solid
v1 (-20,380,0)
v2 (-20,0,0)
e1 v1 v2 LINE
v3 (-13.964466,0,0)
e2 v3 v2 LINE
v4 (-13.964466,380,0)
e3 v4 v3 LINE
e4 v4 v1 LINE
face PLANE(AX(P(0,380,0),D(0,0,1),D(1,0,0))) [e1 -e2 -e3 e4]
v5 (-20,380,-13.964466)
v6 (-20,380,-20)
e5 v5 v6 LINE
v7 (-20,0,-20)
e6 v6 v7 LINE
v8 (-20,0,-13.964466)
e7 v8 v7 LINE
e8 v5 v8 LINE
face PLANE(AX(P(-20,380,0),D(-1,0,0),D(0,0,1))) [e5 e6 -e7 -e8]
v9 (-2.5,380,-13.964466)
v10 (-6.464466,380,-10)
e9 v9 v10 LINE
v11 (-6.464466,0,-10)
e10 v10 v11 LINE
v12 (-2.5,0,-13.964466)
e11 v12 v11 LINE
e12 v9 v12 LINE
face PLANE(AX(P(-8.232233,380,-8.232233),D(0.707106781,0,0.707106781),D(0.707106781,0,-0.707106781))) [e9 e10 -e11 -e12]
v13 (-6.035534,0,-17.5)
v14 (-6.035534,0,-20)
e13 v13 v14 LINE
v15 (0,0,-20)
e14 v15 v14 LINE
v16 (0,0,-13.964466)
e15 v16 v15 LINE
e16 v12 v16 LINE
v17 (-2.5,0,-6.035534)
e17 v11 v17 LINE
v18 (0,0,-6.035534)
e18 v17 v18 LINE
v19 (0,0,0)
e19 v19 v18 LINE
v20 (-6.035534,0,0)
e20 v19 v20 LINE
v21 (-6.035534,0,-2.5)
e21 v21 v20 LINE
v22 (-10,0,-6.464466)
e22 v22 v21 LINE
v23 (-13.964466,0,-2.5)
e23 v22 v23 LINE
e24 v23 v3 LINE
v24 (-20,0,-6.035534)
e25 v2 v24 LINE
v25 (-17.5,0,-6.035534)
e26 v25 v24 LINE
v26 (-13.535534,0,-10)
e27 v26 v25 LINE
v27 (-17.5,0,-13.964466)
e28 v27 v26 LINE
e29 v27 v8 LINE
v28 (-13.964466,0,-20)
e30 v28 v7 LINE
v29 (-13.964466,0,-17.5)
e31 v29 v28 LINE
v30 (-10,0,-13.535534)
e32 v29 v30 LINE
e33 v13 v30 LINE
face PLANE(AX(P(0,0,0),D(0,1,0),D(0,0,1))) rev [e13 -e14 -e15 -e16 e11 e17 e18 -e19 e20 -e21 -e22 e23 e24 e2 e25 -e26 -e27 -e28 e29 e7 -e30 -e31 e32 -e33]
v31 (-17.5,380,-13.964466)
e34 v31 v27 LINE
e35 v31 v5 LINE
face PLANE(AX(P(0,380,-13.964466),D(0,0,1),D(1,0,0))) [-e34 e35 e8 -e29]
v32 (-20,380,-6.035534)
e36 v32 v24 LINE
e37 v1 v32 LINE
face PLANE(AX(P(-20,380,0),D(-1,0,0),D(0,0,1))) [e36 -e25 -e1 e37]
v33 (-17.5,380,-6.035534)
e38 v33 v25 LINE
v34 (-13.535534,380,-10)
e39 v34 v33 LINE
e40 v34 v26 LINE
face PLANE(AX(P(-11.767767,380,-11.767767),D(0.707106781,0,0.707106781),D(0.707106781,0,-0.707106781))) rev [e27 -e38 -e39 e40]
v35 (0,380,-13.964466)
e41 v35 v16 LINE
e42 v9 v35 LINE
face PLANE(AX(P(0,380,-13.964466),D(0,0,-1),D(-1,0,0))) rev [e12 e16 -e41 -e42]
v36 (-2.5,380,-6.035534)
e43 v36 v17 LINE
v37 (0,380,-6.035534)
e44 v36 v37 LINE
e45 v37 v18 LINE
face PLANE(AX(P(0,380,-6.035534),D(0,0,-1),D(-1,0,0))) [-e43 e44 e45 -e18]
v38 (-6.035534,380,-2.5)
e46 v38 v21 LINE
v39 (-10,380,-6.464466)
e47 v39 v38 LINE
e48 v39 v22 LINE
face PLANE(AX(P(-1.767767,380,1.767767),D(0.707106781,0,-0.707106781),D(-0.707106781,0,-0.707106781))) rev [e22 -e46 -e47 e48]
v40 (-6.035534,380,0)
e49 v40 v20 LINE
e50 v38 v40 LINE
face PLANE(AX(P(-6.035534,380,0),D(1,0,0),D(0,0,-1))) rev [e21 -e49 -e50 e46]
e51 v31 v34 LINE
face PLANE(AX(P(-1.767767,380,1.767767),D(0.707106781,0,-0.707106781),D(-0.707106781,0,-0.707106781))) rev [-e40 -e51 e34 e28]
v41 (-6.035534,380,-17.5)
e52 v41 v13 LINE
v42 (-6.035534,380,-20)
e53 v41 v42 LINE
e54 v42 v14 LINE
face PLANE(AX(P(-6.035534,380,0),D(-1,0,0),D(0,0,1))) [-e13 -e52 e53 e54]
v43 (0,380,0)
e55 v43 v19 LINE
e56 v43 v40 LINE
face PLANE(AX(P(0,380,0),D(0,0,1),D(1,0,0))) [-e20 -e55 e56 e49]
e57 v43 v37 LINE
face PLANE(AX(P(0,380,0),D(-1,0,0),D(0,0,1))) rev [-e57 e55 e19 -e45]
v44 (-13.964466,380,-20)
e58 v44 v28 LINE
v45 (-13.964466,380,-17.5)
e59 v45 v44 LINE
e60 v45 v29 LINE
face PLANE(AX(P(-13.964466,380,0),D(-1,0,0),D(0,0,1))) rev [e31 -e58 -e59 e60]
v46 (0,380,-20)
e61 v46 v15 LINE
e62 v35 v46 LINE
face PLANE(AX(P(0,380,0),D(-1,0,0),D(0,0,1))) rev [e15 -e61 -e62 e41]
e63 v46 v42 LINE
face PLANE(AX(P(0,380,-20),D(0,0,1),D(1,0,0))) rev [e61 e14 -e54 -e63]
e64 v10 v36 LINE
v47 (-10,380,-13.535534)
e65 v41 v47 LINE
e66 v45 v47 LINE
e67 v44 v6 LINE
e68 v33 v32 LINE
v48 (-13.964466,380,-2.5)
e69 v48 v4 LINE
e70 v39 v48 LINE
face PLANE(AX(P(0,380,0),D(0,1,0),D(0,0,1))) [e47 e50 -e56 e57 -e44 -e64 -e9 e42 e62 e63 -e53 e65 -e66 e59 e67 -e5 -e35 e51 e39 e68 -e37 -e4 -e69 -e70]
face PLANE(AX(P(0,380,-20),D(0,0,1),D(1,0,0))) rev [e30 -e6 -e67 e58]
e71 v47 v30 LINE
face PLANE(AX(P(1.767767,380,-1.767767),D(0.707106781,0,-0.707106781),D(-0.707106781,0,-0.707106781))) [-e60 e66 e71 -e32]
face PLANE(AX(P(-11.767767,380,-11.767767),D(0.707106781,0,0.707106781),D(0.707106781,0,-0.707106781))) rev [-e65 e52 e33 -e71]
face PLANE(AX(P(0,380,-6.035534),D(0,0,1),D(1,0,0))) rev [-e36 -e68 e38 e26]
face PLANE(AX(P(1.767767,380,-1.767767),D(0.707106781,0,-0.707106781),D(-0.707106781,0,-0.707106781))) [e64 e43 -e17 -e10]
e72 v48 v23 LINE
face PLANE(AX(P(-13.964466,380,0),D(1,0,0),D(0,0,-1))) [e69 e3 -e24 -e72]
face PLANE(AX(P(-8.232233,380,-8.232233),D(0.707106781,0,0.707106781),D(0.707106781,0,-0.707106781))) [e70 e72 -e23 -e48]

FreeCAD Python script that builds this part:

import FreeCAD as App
import Part
import Sketcher

V = App.Vector
Q = App.Units.Quantity

doc = App.newDocument("Part")
body = doc.addObject("PartDesign::Body", "Body")

sketch1 = doc.addObject("Sketcher::SketchObject", "Sketch")
body.addObject(sketch1)
sketch1.AttachmentSupport = (doc.XZ_Plane, [""])
sketch1.MapMode = "FlatFace"
sketch1.addGeometry([
    Part.LineSegment(V(-6, -2.5, 0), V(-6, 0, 0)),
    Part.LineSegment(V(-6, 0, 0), V(0, 0, 0)),
    Part.LineSegment(V(0, 0, 0), V(0, -6, 0)),
    Part.LineSegment(V(0, -6, 0), V(-2.5, -6, 0)),
    Part.LineSegment(V(-2.5, -6, 0), V(-6.5, -10, 0)),
    Part.LineSegment(V(-6.5, -10, 0), V(-2.5, -14, 0)),
    Part.LineSegment(V(-2.5, -14, 0), V(0, -14, 0)),
    Part.LineSegment(V(0, -14, 0), V(0, -20, 0)),
    Part.LineSegment(V(0, -20, 0), V(-6, -20, 0)),
    Part.LineSegment(V(-6, -20, 0), V(-6, -17.5, 0)),
    Part.LineSegment(V(-6, -17.5, 0), V(-10, -13.5, 0)),
    Part.LineSegment(V(-10, -13.5, 0), V(-14, -17.5, 0)),
    Part.LineSegment(V(-14, -17.5, 0), V(-14, -20, 0)),
    Part.LineSegment(V(-14, -20, 0), V(-20, -20, 0)),
    Part.LineSegment(V(-20, -20, 0), V(-20, -14, 0)),
    Part.LineSegment(V(-20, -14, 0), V(-17.5, -14, 0)),
    Part.LineSegment(V(-17.5, -14, 0), V(-13.5, -10, 0)),
    Part.LineSegment(V(-13.5, -10, 0), V(-17.5, -6, 0)),
    Part.LineSegment(V(-17.5, -6, 0), V(-20, -6, 0)),
    Part.LineSegment(V(-20, -6, 0), V(-20, 0, 0)),
    Part.LineSegment(V(-20, 0, 0), V(-14, 0, 0)),
    Part.LineSegment(V(-14, 0, 0), V(-14, -2.5, 0)),
    Part.LineSegment(V(-14, -2.5, 0), V(-10, -6.5, 0)),
    Part.LineSegment(V(-10, -6.5, 0), V(-6, -2.5, 0)),
], False)
sketch1.addConstraint([
    Sketcher.Constraint("Coincident", 0, 2, 1, 1),
    Sketcher.Constraint("Coincident", 1, 2, 2, 1),
    Sketcher.Constraint("Coincident", 2, 2, 3, 1),
    Sketcher.Constraint("Coincident", 3, 2, 4, 1),
    Sketcher.Constraint("Coincident", 4, 2, 5, 1),
    Sketcher.Constraint("Coincident", 5, 2, 6, 1),
    Sketcher.Constraint("Coincident", 6, 2, 7, 1),
    Sketcher.Constraint("Coincident", 7, 2, 8, 1),
    Sketcher.Constraint("Coincident", 8, 2, 9, 1),
    Sketcher.Constraint("Coincident", 9, 2, 10, 1),
    Sketcher.Constraint("Coincident", 10, 2, 11, 1),
    Sketcher.Constraint("Coincident", 11, 2, 12, 1),
    Sketcher.Constraint("Coincident", 12, 2, 13, 1),
    Sketcher.Constraint("Coincident", 13, 2, 14, 1),
    Sketcher.Constraint("Coincident", 14, 2, 15, 1),
    Sketcher.Constraint("Coincident", 15, 2, 16, 1),
    Sketcher.Constraint("Coincident", 16, 2, 17, 1),
    Sketcher.Constraint("Coincident", 17, 2, 18, 1),
    Sketcher.Constraint("Coincident", 18, 2, 19, 1),
    Sketcher.Constraint("Coincident", 19, 2, 20, 1),
    Sketcher.Constraint("Coincident", 20, 2, 21, 1),
    Sketcher.Constraint("Coincident", 21, 2, 22, 1),
    Sketcher.Constraint("Coincident", 22, 2, 23, 1),
    Sketcher.Constraint("Coincident", 23, 2, 0, 1),
    Sketcher.Constraint("Vertical", 0),
    Sketcher.Constraint("Horizontal", 1),
    Sketcher.Constraint("Vertical", 2),
    Sketcher.Constraint("Horizontal", 3),
    Sketcher.Constraint("Horizontal", 6),
    Sketcher.Constraint("Vertical", 7),
    Sketcher.Constraint("Horizontal", 8),
    Sketcher.Constraint("Vertical", 9),
    Sketcher.Constraint("Vertical", 12),
    Sketcher.Constraint("Horizontal", 13),
    Sketcher.Constraint("Vertical", 14),
    Sketcher.Constraint("Horizontal", 15),
    Sketcher.Constraint("Horizontal", 18),
    Sketcher.Constraint("Vertical", 19),
    Sketcher.Constraint("Horizontal", 20),
    Sketcher.Constraint("Vertical", 21),
    Sketcher.Constraint("Coincident", 1, 2, -1, 1),
    Sketcher.Constraint("PointOnObject", 6, 2, -2),
    Sketcher.Constraint("PointOnObject", 19, 2, -1),
    Sketcher.Constraint("Perpendicular", 4, 5),
    Sketcher.Constraint("Parallel", 5, 10),
    Sketcher.Constraint("Perpendicular", 10, 11),
    Sketcher.Constraint("Parallel", 11, 16),
    Sketcher.Constraint("Perpendicular", 16, 17),
    Sketcher.Constraint("Parallel", 17, 22),
    Sketcher.Constraint("Perpendicular", 22, 23),
    Sketcher.Constraint("Horizontal", 9, 2, 11, 2),
    Sketcher.Constraint("Horizontal", 8, 2, 12, 2),
    Sketcher.Constraint("Horizontal", 6, 2, 14, 2),
    Sketcher.Constraint("Horizontal", 4, 2, 16, 2),
    Sketcher.Constraint("Horizontal", 3, 2, 17, 2),
    Sketcher.Constraint("Horizontal", 21, 2, 23, 2),
    Sketcher.Constraint("Vertical", 3, 2, 5, 2),
    Sketcher.Constraint("Vertical", 0, 2, 8, 2),
    Sketcher.Constraint("Vertical", 15, 2, 17, 2),
    Sketcher.Constraint("Vertical", 14, 2, 18, 2),
    Sketcher.Constraint("Vertical", 12, 2, 20, 2),
    Sketcher.Constraint("Equal", 8, 13),
    Sketcher.Constraint("Equal", 6, 15),
    Sketcher.Constraint("Equal", 18, 0),
    Sketcher.Constraint("Equal", 20, 2),
    Sketcher.Constraint("Equal", 2, 7),
    Sketcher.Constraint("Equal", 0, 9),
    Sketcher.Constraint("Equal", 5, 10),
    Sketcher.Constraint("DistanceX", 3, 2, 3, 1, Q("2.5 mm")),
    Sketcher.Constraint("DistanceY", 4, 2, -1, 1, Q("10 mm")),
    Sketcher.Constraint("Distance", 4, Q("5.606602 mm")),
])
pad1 = doc.addObject("PartDesign::Pad", "Pad")
body.addObject(pad1)
pad1.Profile = sketch1
pad1.Length = 380
pad1.Reversed = True

doc.recompute()
